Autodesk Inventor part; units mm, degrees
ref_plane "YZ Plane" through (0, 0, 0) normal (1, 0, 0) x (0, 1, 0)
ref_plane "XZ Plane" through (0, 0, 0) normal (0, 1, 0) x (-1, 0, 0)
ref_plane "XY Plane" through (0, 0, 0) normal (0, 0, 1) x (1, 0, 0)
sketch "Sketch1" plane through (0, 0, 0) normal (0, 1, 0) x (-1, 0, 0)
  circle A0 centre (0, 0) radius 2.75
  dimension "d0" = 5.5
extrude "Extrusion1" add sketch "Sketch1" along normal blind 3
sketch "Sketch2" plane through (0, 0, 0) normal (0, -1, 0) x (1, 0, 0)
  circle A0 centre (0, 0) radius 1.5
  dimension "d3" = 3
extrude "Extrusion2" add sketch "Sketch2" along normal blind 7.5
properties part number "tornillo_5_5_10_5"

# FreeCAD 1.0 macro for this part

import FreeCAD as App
import Part
import Sketcher

V = App.Vector
Q = App.Units.Quantity

doc = App.newDocument("Part")
body = doc.addObject("PartDesign::Body", "Body")

sketch1 = body.newObject("Sketcher::SketchObject", "Sketch")
sketch1.AttachmentSupport = (doc.getObject("XZ_Plane"), [""])
sketch1.MapMode = "FlatFace"
sketch1.addGeometry(Part.Circle(V(0, 0, 0), V(0, 0, 1), 2.75), False)
sketch1.addConstraint([
    Sketcher.Constraint("Coincident", 0, 3, -1, 1),
    Sketcher.Constraint("Diameter", 0, Q("5.5 mm")),
])
pad1 = body.newObject("PartDesign::Pad", "Pad")
pad1.Profile = sketch1
pad1.Length = 3
pad1.Reversed = True

sketch2 = body.newObject("Sketcher::SketchObject", "Sketch001")
sketch2.AttachmentSupport = (doc.getObject("XZ_Plane"), [""])
sketch2.MapMode = "FlatFace"
sketch2.addGeometry(Part.Circle(V(0, 0, 0), V(0, 0, 1), 1.5), False)
sketch2.addConstraint([
    Sketcher.Constraint("Coincident", 0, 3, -1, 1),
    Sketcher.Constraint("Diameter", 0, Q("3 mm")),
])
pad2 = body.newObject("PartDesign::Pad", "Pad001")
pad2.Profile = sketch2
pad2.Length = 7.5

doc.recompute()
